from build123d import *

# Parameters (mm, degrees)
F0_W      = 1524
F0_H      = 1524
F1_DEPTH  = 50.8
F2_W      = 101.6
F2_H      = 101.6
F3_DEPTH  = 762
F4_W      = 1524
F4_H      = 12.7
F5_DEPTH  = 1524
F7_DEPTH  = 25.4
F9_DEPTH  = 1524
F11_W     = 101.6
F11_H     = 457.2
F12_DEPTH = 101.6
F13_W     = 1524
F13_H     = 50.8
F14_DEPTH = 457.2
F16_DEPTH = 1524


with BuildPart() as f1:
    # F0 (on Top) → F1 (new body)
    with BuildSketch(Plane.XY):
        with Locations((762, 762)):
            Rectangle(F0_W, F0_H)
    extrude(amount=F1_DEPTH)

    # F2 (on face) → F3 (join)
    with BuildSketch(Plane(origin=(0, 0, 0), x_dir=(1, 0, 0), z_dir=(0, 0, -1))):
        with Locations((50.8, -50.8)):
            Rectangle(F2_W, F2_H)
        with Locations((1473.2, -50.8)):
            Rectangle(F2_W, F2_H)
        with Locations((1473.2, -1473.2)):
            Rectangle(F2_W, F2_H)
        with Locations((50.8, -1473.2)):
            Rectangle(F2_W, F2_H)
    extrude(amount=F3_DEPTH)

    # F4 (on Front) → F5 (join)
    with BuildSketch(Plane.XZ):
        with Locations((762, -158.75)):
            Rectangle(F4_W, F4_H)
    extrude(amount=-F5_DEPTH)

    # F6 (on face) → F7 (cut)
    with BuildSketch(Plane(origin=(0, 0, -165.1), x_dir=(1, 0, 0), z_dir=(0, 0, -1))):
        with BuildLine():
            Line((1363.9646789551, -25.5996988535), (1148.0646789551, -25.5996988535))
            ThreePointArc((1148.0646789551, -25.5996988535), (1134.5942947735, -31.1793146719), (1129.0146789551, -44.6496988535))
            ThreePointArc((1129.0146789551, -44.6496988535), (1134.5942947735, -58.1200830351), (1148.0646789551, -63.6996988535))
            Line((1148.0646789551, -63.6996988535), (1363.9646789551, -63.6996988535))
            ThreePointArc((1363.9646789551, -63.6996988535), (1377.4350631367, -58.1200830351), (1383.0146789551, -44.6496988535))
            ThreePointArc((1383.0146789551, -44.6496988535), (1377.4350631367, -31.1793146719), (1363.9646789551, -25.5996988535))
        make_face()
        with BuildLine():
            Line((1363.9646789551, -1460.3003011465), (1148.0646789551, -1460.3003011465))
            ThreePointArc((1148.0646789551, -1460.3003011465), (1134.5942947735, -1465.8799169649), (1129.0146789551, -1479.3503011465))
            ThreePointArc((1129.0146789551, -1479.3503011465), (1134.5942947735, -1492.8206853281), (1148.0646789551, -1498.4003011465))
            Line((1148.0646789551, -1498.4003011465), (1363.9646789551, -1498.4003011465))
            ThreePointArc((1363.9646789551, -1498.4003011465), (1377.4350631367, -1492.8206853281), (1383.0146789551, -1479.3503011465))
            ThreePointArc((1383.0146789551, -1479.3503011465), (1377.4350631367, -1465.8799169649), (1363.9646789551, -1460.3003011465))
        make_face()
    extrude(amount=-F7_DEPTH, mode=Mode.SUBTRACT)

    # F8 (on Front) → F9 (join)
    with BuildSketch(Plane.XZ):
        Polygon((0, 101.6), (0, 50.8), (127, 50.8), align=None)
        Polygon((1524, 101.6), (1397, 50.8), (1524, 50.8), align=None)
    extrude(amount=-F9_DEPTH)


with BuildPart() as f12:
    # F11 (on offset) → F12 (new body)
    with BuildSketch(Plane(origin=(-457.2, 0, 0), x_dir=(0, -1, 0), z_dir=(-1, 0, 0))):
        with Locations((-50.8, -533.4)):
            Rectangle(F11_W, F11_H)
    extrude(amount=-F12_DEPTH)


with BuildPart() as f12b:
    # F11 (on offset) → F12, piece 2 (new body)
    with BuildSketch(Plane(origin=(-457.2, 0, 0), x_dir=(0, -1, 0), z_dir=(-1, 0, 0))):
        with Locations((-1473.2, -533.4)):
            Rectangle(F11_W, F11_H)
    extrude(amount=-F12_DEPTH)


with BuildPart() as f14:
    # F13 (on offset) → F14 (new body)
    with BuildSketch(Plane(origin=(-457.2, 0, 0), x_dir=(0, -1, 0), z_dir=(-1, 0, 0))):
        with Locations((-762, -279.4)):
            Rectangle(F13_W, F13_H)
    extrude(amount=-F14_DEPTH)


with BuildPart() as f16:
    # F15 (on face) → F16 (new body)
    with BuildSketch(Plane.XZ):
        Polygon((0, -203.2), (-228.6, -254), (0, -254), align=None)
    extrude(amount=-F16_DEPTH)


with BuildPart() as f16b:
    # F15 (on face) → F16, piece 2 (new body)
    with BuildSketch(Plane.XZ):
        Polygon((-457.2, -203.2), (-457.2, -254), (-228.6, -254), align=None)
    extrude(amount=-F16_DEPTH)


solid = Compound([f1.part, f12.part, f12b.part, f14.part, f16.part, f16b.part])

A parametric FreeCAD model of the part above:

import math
import FreeCAD as App
import Part
import Sketcher
from FreeCAD import Vector
Q = App.Units.Quantity


def add_polygon(sketch, points):
    """Adds a closed chain of lines whose ends are joined by coincident constraints."""
    first, n = sketch.GeometryCount, len(points)
    for a, b in zip(points, points[1:] + points[:1]):
        sketch.addGeometry(Part.LineSegment(App.Vector(*a, 0), App.Vector(*b, 0)), False)
    for i in range(n):
        sketch.addConstraint(Sketcher.Constraint("Coincident", first + i, 2, first + (i + 1) % n, 1))

doc = App.newDocument("Part")
body = doc.addObject("PartDesign::Body", "Body")

sketch1 = body.newObject("Sketcher::SketchObject", "Sketch")
sketch1.AttachmentSupport = (doc.getObject("XY_Plane"), [""])
sketch1.MapMode = "FlatFace"
add_polygon(sketch1, [(0, 1524), (0, 0), (1524, 0), (1524, 1524)])
sketch1.addConstraint([
    Sketcher.Constraint("Vertical", 0),
    Sketcher.Constraint("Horizontal", 1),
    Sketcher.Constraint("Vertical", 2),
    Sketcher.Constraint("Horizontal", 3),
    Sketcher.Constraint("Coincident", 0, 2, -1, 1),
    Sketcher.Constraint("Equal", 3, 0),
    Sketcher.Constraint("DistanceX", 1, 1, 1, 2, Q("60 in")),
])
pad1 = body.newObject("PartDesign::Pad", "Pad")
pad1.Profile = sketch1
pad1.Length = Q("2 in")

sketch2 = body.newObject("Sketcher::SketchObject", "Sketch001")
sketch2.AttachmentSupport = (doc.getObject("XY_Plane"), [""])
sketch2.MapMode = "FlatFace"
add_polygon(sketch2, [(0, 0), (0, 101.6), (101.6, 101.6), (101.6, 0)])
add_polygon(sketch2, [(1422.4, 0), (1422.4, 101.6), (1524, 101.6), (1524, 0)])
add_polygon(sketch2, [(1422.4, 1422.4), (1422.4, 1524), (1524, 1524), (1524, 1422.4)])
add_polygon(sketch2, [(0, 1422.4), (0, 1524), (101.6, 1524), (101.6, 1422.4)])
sketch2.addConstraint([
    Sketcher.Constraint("Vertical", 0),
    Sketcher.Constraint("Horizontal", 1),
    Sketcher.Constraint("Vertical", 2),
    Sketcher.Constraint("Horizontal", 3),
    Sketcher.Constraint("Vertical", 4),
    Sketcher.Constraint("Horizontal", 5),
    Sketcher.Constraint("Vertical", 6),
    Sketcher.Constraint("Horizontal", 7),
    Sketcher.Constraint("Vertical", 8),
    Sketcher.Constraint("Horizontal", 9),
    Sketcher.Constraint("Vertical", 10),
    Sketcher.Constraint("Horizontal", 11),
    Sketcher.Constraint("Vertical", 12),
    Sketcher.Constraint("Horizontal", 13),
    Sketcher.Constraint("Vertical", 14),
    Sketcher.Constraint("Horizontal", 15),
    Sketcher.Constraint("Coincident", 3, 2, -1, 1),
    Sketcher.Constraint("PointOnObject", 6, 2, -1),
    Sketcher.Constraint("PointOnObject", 12, 2, -2),
    Sketcher.Constraint("Horizontal", 1, 2, 4, 2),
    Sketcher.Constraint("Horizontal", 9, 2, 12, 2),
    Sketcher.Constraint("Horizontal", 11, 2, 14, 2),
    Sketcher.Constraint("Vertical", 7, 2, 8, 2),
    Sketcher.Constraint("Vertical", 6, 2, 9, 2),
    Sketcher.Constraint("Vertical", 2, 2, 13, 2),
    Sketcher.Constraint("Equal", 3, 5),
    Sketcher.Constraint("Equal", 15, 0),
    Sketcher.Constraint("Equal", 6, 8),
    Sketcher.Constraint("DistanceX", 1, 1, 1, 2, Q("4 in")),
    Sketcher.Constraint("DistanceX", -1, 1, 4, 2, Q("56 in")),
    Sketcher.Constraint("DistanceY", -1, 1, 8, 2, Q("60 in")),
])
pad2 = body.newObject("PartDesign::Pad", "Pad001")
pad2.Profile = sketch2
pad2.Length = Q("30 in")
pad2.Reversed = True

sketch3 = body.newObject("Sketcher::SketchObject", "Sketch002")
sketch3.AttachmentSupport = (doc.getObject("XZ_Plane"), [""])
sketch3.MapMode = "FlatFace"
add_polygon(sketch3, [(0, -152.4), (0, -165.1), (1524, -165.1), (1524, -152.4)])
sketch3.addConstraint([
    Sketcher.Constraint("Vertical", 0),
    Sketcher.Constraint("Horizontal", 1),
    Sketcher.Constraint("Vertical", 2),
    Sketcher.Constraint("Horizontal", 3),
    Sketcher.Constraint("PointOnObject", 0, 2, -2),
    Sketcher.Constraint("DistanceX", 1, 1, 1, 2, Q("60 in")),
    Sketcher.Constraint("DistanceY", 0, 2, 0, 1, Q("0.5 in")),
    Sketcher.Constraint("DistanceY", 2, 2, -1, 1, Q("6 in")),
])
pad3 = body.newObject("PartDesign::Pad", "Pad002")
pad3.Profile = sketch3
pad3.Length = Q("60 in")
pad3.Reversed = True

sketch4 = body.newObject("Sketcher::SketchObject", "Sketch003")
sketch4.AttachmentSupport = (doc.getObject("XY_Plane"), [""])
sketch4.MapMode = "FlatFace"
sketch4.AttachmentOffset = App.Placement(Vector(0, 0, -6.5 * 25.4), App.Rotation())
sketch4.addGeometry([
    Part.LineSegment(Vector(1363.964679, 25.599699, 0), Vector(1148.064679, 25.599699, 0)),
    Part.ArcOfCircle(Part.Circle(Vector(1148.064679, 44.649699, 0), Vector(0, 0, 1), 19.05), math.radians(-180), math.radians(-90)),
    Part.ArcOfCircle(Part.Circle(Vector(1148.064679, 44.649699, 0), Vector(0, 0, 1), 19.05), math.radians(90), math.radians(180)),
    Part.LineSegment(Vector(1148.064679, 63.699699, 0), Vector(1363.964679, 63.699699, 0)),
    Part.ArcOfCircle(Part.Circle(Vector(1363.964679, 44.649699, 0), Vector(0, 0, 1), 19.05), math.radians(0), math.radians(90)),
    Part.ArcOfCircle(Part.Circle(Vector(1363.964679, 44.649699, 0), Vector(0, 0, 1), 19.05), math.radians(-90), math.radians(0)),
    Part.LineSegment(Vector(1363.964679, 1460.300301, 0), Vector(1148.064679, 1460.300301, 0)),
    Part.ArcOfCircle(Part.Circle(Vector(1148.064679, 1479.350301, 0), Vector(0, 0, 1), 19.05), math.radians(-180), math.radians(-90)),
    Part.ArcOfCircle(Part.Circle(Vector(1148.064679, 1479.350301, 0), Vector(0, 0, 1), 19.05), math.radians(90), math.radians(180)),
    Part.LineSegment(Vector(1148.064679, 1498.400301, 0), Vector(1363.964679, 1498.400301, 0)),
    Part.ArcOfCircle(Part.Circle(Vector(1363.964679, 1479.350301, 0), Vector(0, 0, 1), 19.05), math.radians(0), math.radians(90)),
    Part.ArcOfCircle(Part.Circle(Vector(1363.964679, 1479.350301, 0), Vector(0, 0, 1), 19.05), math.radians(-90), math.radians(0)),
], False)
sketch4.addConstraint([
    Sketcher.Constraint("Tangent", 0, 2, 1, 2),
    Sketcher.Constraint("Tangent", 1, 1, 2, 2),
    Sketcher.Constraint("Tangent", 2, 1, 3, 1),
    Sketcher.Constraint("Tangent", 3, 2, 4, 2),
    Sketcher.Constraint("Tangent", 4, 1, 5, 2),
    Sketcher.Constraint("Tangent", 5, 1, 0, 1),
    Sketcher.Constraint("Tangent", 6, 2, 7, 2),
    Sketcher.Constraint("Tangent", 7, 1, 8, 2),
    Sketcher.Constraint("Tangent", 8, 1, 9, 1),
    Sketcher.Constraint("Tangent", 9, 2, 10, 2),
    Sketcher.Constraint("Tangent", 10, 1, 11, 2),
    Sketcher.Constraint("Tangent", 11, 1, 6, 1),
    Sketcher.Constraint("Horizontal", 0),
    Sketcher.Constraint("Horizontal", 3),
    Sketcher.Constraint("Horizontal", 6),
    Sketcher.Constraint("Horizontal", 9),
    Sketcher.Constraint("Equal", 1, 2),
    Sketcher.Constraint("Equal", 2, 4),
    Sketcher.Constraint("Equal", 5, 7),
    Sketcher.Constraint("Equal", 7, 8),
    Sketcher.Constraint("Equal", 8, 10),
    Sketcher.Constraint("Horizontal", 5, 3, 1, 1),
    Sketcher.Constraint("Horizontal", 1, 1, 4, 1),
    Sketcher.Constraint("Horizontal", 11, 3, 7, 1),
    Sketcher.Constraint("Horizontal", 7, 1, 10, 1),
    Sketcher.Constraint("Vertical", 2, 3, 7, 3),
    Sketcher.Constraint("Vertical", 5, 3, 10, 3),
    Sketcher.Constraint("Radius", 1, Q("0.75 in")),
    Sketcher.Constraint("DistanceX", 0, 2, 0, 1, Q("8.5 in")),
    Sketcher.Constraint("DistanceY", -1, 1, 1, 3, 44.649699),
    Sketcher.Constraint("DistanceY", -1, 1, 7, 3, 1479.350301),
    Sketcher.Constraint("DistanceX", -1, 1, 1, 3, 1148.064679),
])
pocket1 = body.newObject("PartDesign::Pocket", "Pocket")
pocket1.Profile = sketch4
pocket1.Length = Q("1 in")
pocket1.Reversed = True

sketch5 = body.newObject("Sketcher::SketchObject", "Sketch004")
sketch5.AttachmentSupport = (doc.getObject("XZ_Plane"), [""])
sketch5.MapMode = "FlatFace"
add_polygon(sketch5, [(0, 101.6), (0, 50.8), (127, 50.8)])
add_polygon(sketch5, [(1524, 101.6), (1397, 50.8), (1524, 50.8)])
sketch5.addConstraint([
    Sketcher.Constraint("Vertical", 0),
    Sketcher.Constraint("Horizontal", 1),
    Sketcher.Constraint("Horizontal", 4),
    Sketcher.Constraint("Vertical", 5),
    Sketcher.Constraint("PointOnObject", 0, 2, -2),
    Sketcher.Constraint("Horizontal", 1, 2, 3, 2),
    Sketcher.Constraint("Horizontal", 2, 2, 5, 2),
    Sketcher.Constraint("Equal", 1, 4),
    Sketcher.Constraint("DistanceX", 1, 1, 1, 2, Q("5 in")),
    Sketcher.Constraint("DistanceY", 0, 2, 0, 1, Q("2 in")),
    Sketcher.Constraint("DistanceY", -1, 1, 0, 2, Q("2 in")),
    Sketcher.Constraint("DistanceX", -1, 1, 3, 2, Q("55 in")),
])
pad4 = body.newObject("PartDesign::Pad", "Pad003")
pad4.Profile = sketch5
pad4.Length = Q("60 in")
pad4.Reversed = True
body2 = doc.addObject("PartDesign::Body", "Body001")

sketch6 = body2.newObject("Sketcher::SketchObject", "Sketch005")
sketch6.AttachmentSupport = (doc.getObject("YZ_Plane001"), [""])
sketch6.MapMode = "FlatFace"
sketch6.AttachmentOffset = App.Placement(Vector(0, 0, -18 * 25.4), App.Rotation())
add_polygon(sketch6, [(101.6, -304.8), (101.6, -762), (0, -762), (0, -304.8)])
sketch6.addConstraint([
    Sketcher.Constraint("Vertical", 0),
    Sketcher.Constraint("Horizontal", 1),
    Sketcher.Constraint("Vertical", 2),
    Sketcher.Constraint("Horizontal", 3),
    Sketcher.Constraint("PointOnObject", 1, 2, -2),
    Sketcher.Constraint("DistanceX", 1, 2, 1, 1, Q("4 in")),
    Sketcher.Constraint("DistanceY", 0, 2, 0, 1, Q("18 in")),
    Sketcher.Constraint("DistanceY", 0, 2, -1, 1, Q("30 in")),
])
pad5 = body2.newObject("PartDesign::Pad", "Pad004")
pad5.Profile = sketch6
pad5.Length = Q("4 in")
body3 = doc.addObject("PartDesign::Body", "Body002")

sketch7 = body3.newObject("Sketcher::SketchObject", "Sketch006")
sketch7.AttachmentSupport = (doc.getObject("YZ_Plane002"), [""])
sketch7.MapMode = "FlatFace"
sketch7.AttachmentOffset = App.Placement(Vector(0, 0, -18 * 25.4), App.Rotation())
add_polygon(sketch7, [(1524, -304.8), (1524, -762), (1422.4, -762), (1422.4, -304.8)])
sketch7.addConstraint([
    Sketcher.Constraint("Vertical", 0),
    Sketcher.Constraint("Horizontal", 1),
    Sketcher.Constraint("Vertical", 2),
    Sketcher.Constraint("Horizontal", 3),
    Sketcher.Constraint("DistanceX", 1, 2, 1, 1, Q("4 in")),
    Sketcher.Constraint("DistanceY", 0, 2, 0, 1, Q("18 in")),
    Sketcher.Constraint("DistanceX", -1, 1, 0, 2, Q("60 in")),
    Sketcher.Constraint("DistanceY", 0, 2, -1, 1, Q("30 in")),
])
pad6 = body3.newObject("PartDesign::Pad", "Pad005")
pad6.Profile = sketch7
pad6.Length = Q("4 in")
body4 = doc.addObject("PartDesign::Body", "Body003")

sketch8 = body4.newObject("Sketcher::SketchObject", "Sketch007")
sketch8.AttachmentSupport = (doc.getObject("YZ_Plane003"), [""])
sketch8.MapMode = "FlatFace"
sketch8.AttachmentOffset = App.Placement(Vector(0, 0, -18 * 25.4), App.Rotation())
add_polygon(sketch8, [(1524, -254), (1524, -304.8), (0, -304.8), (0, -254)])
sketch8.addConstraint([
    Sketcher.Constraint("Vertical", 0),
    Sketcher.Constraint("Horizontal", 1),
    Sketcher.Constraint("Vertical", 2),
    Sketcher.Constraint("Horizontal", 3),
    Sketcher.Constraint("PointOnObject", 1, 2, -2),
    Sketcher.Constraint("DistanceX", 1, 2, 1, 1, Q("60 in")),
    Sketcher.Constraint("DistanceY", 0, 2, 0, 1, Q("2 in")),
    Sketcher.Constraint("DistanceY", 0, 2, -1, 1, Q("12 in")),
])
pad7 = body4.newObject("PartDesign::Pad", "Pad006")
pad7.Profile = sketch8
pad7.Length = Q("18 in")
body5 = doc.addObject("PartDesign::Body", "Body004")

sketch9 = body5.newObject("Sketcher::SketchObject", "Sketch008")
sketch9.AttachmentSupport = (doc.getObject("XZ_Plane004"), [""])
sketch9.MapMode = "FlatFace"
add_polygon(sketch9, [(0, -203.2), (-228.6, -254), (0, -254)])
sketch9.addConstraint([
    Sketcher.Constraint("Horizontal", 1),
    Sketcher.Constraint("Vertical", 2),
    Sketcher.Constraint("PointOnObject", 1, 2, -2),
    Sketcher.Constraint("DistanceX", 1, 1, 1, 2, Q("9 in")),
    Sketcher.Constraint("DistanceY", 2, 1, 2, 2, Q("2 in")),
    Sketcher.Constraint("DistanceY", 0, 2, -1, 1, Q("10 in")),
])
pad8 = body5.newObject("PartDesign::Pad", "Pad007")
pad8.Profile = sketch9
pad8.Length = Q("60 in")
pad8.Reversed = True
body6 = doc.addObject("PartDesign::Body", "Body005")

sketch10 = body6.newObject("Sketcher::SketchObject", "Sketch009")
sketch10.AttachmentSupport = (doc.getObject("XZ_Plane005"), [""])
sketch10.MapMode = "FlatFace"
add_polygon(sketch10, [(-457.2, -203.2), (-457.2, -254), (-228.6, -254)])
sketch10.addConstraint([
    Sketcher.Constraint("Vertical", 0),
    Sketcher.Constraint("Horizontal", 1),
    Sketcher.Constraint("DistanceX", 1, 1, 1, 2, Q("9 in")),
    Sketcher.Constraint("DistanceY", 0, 2, 0, 1, Q("2 in")),
    Sketcher.Constraint("DistanceX", 0, 2, -1, 1, Q("18 in")),
    Sketcher.Constraint("DistanceY", 0, 2, -1, 1, Q("10 in")),
])
pad9 = body6.newObject("PartDesign::Pad", "Pad008")
pad9.Profile = sketch10
pad9.Length = Q("60 in")
pad9.Reversed = True

doc.recompute()
